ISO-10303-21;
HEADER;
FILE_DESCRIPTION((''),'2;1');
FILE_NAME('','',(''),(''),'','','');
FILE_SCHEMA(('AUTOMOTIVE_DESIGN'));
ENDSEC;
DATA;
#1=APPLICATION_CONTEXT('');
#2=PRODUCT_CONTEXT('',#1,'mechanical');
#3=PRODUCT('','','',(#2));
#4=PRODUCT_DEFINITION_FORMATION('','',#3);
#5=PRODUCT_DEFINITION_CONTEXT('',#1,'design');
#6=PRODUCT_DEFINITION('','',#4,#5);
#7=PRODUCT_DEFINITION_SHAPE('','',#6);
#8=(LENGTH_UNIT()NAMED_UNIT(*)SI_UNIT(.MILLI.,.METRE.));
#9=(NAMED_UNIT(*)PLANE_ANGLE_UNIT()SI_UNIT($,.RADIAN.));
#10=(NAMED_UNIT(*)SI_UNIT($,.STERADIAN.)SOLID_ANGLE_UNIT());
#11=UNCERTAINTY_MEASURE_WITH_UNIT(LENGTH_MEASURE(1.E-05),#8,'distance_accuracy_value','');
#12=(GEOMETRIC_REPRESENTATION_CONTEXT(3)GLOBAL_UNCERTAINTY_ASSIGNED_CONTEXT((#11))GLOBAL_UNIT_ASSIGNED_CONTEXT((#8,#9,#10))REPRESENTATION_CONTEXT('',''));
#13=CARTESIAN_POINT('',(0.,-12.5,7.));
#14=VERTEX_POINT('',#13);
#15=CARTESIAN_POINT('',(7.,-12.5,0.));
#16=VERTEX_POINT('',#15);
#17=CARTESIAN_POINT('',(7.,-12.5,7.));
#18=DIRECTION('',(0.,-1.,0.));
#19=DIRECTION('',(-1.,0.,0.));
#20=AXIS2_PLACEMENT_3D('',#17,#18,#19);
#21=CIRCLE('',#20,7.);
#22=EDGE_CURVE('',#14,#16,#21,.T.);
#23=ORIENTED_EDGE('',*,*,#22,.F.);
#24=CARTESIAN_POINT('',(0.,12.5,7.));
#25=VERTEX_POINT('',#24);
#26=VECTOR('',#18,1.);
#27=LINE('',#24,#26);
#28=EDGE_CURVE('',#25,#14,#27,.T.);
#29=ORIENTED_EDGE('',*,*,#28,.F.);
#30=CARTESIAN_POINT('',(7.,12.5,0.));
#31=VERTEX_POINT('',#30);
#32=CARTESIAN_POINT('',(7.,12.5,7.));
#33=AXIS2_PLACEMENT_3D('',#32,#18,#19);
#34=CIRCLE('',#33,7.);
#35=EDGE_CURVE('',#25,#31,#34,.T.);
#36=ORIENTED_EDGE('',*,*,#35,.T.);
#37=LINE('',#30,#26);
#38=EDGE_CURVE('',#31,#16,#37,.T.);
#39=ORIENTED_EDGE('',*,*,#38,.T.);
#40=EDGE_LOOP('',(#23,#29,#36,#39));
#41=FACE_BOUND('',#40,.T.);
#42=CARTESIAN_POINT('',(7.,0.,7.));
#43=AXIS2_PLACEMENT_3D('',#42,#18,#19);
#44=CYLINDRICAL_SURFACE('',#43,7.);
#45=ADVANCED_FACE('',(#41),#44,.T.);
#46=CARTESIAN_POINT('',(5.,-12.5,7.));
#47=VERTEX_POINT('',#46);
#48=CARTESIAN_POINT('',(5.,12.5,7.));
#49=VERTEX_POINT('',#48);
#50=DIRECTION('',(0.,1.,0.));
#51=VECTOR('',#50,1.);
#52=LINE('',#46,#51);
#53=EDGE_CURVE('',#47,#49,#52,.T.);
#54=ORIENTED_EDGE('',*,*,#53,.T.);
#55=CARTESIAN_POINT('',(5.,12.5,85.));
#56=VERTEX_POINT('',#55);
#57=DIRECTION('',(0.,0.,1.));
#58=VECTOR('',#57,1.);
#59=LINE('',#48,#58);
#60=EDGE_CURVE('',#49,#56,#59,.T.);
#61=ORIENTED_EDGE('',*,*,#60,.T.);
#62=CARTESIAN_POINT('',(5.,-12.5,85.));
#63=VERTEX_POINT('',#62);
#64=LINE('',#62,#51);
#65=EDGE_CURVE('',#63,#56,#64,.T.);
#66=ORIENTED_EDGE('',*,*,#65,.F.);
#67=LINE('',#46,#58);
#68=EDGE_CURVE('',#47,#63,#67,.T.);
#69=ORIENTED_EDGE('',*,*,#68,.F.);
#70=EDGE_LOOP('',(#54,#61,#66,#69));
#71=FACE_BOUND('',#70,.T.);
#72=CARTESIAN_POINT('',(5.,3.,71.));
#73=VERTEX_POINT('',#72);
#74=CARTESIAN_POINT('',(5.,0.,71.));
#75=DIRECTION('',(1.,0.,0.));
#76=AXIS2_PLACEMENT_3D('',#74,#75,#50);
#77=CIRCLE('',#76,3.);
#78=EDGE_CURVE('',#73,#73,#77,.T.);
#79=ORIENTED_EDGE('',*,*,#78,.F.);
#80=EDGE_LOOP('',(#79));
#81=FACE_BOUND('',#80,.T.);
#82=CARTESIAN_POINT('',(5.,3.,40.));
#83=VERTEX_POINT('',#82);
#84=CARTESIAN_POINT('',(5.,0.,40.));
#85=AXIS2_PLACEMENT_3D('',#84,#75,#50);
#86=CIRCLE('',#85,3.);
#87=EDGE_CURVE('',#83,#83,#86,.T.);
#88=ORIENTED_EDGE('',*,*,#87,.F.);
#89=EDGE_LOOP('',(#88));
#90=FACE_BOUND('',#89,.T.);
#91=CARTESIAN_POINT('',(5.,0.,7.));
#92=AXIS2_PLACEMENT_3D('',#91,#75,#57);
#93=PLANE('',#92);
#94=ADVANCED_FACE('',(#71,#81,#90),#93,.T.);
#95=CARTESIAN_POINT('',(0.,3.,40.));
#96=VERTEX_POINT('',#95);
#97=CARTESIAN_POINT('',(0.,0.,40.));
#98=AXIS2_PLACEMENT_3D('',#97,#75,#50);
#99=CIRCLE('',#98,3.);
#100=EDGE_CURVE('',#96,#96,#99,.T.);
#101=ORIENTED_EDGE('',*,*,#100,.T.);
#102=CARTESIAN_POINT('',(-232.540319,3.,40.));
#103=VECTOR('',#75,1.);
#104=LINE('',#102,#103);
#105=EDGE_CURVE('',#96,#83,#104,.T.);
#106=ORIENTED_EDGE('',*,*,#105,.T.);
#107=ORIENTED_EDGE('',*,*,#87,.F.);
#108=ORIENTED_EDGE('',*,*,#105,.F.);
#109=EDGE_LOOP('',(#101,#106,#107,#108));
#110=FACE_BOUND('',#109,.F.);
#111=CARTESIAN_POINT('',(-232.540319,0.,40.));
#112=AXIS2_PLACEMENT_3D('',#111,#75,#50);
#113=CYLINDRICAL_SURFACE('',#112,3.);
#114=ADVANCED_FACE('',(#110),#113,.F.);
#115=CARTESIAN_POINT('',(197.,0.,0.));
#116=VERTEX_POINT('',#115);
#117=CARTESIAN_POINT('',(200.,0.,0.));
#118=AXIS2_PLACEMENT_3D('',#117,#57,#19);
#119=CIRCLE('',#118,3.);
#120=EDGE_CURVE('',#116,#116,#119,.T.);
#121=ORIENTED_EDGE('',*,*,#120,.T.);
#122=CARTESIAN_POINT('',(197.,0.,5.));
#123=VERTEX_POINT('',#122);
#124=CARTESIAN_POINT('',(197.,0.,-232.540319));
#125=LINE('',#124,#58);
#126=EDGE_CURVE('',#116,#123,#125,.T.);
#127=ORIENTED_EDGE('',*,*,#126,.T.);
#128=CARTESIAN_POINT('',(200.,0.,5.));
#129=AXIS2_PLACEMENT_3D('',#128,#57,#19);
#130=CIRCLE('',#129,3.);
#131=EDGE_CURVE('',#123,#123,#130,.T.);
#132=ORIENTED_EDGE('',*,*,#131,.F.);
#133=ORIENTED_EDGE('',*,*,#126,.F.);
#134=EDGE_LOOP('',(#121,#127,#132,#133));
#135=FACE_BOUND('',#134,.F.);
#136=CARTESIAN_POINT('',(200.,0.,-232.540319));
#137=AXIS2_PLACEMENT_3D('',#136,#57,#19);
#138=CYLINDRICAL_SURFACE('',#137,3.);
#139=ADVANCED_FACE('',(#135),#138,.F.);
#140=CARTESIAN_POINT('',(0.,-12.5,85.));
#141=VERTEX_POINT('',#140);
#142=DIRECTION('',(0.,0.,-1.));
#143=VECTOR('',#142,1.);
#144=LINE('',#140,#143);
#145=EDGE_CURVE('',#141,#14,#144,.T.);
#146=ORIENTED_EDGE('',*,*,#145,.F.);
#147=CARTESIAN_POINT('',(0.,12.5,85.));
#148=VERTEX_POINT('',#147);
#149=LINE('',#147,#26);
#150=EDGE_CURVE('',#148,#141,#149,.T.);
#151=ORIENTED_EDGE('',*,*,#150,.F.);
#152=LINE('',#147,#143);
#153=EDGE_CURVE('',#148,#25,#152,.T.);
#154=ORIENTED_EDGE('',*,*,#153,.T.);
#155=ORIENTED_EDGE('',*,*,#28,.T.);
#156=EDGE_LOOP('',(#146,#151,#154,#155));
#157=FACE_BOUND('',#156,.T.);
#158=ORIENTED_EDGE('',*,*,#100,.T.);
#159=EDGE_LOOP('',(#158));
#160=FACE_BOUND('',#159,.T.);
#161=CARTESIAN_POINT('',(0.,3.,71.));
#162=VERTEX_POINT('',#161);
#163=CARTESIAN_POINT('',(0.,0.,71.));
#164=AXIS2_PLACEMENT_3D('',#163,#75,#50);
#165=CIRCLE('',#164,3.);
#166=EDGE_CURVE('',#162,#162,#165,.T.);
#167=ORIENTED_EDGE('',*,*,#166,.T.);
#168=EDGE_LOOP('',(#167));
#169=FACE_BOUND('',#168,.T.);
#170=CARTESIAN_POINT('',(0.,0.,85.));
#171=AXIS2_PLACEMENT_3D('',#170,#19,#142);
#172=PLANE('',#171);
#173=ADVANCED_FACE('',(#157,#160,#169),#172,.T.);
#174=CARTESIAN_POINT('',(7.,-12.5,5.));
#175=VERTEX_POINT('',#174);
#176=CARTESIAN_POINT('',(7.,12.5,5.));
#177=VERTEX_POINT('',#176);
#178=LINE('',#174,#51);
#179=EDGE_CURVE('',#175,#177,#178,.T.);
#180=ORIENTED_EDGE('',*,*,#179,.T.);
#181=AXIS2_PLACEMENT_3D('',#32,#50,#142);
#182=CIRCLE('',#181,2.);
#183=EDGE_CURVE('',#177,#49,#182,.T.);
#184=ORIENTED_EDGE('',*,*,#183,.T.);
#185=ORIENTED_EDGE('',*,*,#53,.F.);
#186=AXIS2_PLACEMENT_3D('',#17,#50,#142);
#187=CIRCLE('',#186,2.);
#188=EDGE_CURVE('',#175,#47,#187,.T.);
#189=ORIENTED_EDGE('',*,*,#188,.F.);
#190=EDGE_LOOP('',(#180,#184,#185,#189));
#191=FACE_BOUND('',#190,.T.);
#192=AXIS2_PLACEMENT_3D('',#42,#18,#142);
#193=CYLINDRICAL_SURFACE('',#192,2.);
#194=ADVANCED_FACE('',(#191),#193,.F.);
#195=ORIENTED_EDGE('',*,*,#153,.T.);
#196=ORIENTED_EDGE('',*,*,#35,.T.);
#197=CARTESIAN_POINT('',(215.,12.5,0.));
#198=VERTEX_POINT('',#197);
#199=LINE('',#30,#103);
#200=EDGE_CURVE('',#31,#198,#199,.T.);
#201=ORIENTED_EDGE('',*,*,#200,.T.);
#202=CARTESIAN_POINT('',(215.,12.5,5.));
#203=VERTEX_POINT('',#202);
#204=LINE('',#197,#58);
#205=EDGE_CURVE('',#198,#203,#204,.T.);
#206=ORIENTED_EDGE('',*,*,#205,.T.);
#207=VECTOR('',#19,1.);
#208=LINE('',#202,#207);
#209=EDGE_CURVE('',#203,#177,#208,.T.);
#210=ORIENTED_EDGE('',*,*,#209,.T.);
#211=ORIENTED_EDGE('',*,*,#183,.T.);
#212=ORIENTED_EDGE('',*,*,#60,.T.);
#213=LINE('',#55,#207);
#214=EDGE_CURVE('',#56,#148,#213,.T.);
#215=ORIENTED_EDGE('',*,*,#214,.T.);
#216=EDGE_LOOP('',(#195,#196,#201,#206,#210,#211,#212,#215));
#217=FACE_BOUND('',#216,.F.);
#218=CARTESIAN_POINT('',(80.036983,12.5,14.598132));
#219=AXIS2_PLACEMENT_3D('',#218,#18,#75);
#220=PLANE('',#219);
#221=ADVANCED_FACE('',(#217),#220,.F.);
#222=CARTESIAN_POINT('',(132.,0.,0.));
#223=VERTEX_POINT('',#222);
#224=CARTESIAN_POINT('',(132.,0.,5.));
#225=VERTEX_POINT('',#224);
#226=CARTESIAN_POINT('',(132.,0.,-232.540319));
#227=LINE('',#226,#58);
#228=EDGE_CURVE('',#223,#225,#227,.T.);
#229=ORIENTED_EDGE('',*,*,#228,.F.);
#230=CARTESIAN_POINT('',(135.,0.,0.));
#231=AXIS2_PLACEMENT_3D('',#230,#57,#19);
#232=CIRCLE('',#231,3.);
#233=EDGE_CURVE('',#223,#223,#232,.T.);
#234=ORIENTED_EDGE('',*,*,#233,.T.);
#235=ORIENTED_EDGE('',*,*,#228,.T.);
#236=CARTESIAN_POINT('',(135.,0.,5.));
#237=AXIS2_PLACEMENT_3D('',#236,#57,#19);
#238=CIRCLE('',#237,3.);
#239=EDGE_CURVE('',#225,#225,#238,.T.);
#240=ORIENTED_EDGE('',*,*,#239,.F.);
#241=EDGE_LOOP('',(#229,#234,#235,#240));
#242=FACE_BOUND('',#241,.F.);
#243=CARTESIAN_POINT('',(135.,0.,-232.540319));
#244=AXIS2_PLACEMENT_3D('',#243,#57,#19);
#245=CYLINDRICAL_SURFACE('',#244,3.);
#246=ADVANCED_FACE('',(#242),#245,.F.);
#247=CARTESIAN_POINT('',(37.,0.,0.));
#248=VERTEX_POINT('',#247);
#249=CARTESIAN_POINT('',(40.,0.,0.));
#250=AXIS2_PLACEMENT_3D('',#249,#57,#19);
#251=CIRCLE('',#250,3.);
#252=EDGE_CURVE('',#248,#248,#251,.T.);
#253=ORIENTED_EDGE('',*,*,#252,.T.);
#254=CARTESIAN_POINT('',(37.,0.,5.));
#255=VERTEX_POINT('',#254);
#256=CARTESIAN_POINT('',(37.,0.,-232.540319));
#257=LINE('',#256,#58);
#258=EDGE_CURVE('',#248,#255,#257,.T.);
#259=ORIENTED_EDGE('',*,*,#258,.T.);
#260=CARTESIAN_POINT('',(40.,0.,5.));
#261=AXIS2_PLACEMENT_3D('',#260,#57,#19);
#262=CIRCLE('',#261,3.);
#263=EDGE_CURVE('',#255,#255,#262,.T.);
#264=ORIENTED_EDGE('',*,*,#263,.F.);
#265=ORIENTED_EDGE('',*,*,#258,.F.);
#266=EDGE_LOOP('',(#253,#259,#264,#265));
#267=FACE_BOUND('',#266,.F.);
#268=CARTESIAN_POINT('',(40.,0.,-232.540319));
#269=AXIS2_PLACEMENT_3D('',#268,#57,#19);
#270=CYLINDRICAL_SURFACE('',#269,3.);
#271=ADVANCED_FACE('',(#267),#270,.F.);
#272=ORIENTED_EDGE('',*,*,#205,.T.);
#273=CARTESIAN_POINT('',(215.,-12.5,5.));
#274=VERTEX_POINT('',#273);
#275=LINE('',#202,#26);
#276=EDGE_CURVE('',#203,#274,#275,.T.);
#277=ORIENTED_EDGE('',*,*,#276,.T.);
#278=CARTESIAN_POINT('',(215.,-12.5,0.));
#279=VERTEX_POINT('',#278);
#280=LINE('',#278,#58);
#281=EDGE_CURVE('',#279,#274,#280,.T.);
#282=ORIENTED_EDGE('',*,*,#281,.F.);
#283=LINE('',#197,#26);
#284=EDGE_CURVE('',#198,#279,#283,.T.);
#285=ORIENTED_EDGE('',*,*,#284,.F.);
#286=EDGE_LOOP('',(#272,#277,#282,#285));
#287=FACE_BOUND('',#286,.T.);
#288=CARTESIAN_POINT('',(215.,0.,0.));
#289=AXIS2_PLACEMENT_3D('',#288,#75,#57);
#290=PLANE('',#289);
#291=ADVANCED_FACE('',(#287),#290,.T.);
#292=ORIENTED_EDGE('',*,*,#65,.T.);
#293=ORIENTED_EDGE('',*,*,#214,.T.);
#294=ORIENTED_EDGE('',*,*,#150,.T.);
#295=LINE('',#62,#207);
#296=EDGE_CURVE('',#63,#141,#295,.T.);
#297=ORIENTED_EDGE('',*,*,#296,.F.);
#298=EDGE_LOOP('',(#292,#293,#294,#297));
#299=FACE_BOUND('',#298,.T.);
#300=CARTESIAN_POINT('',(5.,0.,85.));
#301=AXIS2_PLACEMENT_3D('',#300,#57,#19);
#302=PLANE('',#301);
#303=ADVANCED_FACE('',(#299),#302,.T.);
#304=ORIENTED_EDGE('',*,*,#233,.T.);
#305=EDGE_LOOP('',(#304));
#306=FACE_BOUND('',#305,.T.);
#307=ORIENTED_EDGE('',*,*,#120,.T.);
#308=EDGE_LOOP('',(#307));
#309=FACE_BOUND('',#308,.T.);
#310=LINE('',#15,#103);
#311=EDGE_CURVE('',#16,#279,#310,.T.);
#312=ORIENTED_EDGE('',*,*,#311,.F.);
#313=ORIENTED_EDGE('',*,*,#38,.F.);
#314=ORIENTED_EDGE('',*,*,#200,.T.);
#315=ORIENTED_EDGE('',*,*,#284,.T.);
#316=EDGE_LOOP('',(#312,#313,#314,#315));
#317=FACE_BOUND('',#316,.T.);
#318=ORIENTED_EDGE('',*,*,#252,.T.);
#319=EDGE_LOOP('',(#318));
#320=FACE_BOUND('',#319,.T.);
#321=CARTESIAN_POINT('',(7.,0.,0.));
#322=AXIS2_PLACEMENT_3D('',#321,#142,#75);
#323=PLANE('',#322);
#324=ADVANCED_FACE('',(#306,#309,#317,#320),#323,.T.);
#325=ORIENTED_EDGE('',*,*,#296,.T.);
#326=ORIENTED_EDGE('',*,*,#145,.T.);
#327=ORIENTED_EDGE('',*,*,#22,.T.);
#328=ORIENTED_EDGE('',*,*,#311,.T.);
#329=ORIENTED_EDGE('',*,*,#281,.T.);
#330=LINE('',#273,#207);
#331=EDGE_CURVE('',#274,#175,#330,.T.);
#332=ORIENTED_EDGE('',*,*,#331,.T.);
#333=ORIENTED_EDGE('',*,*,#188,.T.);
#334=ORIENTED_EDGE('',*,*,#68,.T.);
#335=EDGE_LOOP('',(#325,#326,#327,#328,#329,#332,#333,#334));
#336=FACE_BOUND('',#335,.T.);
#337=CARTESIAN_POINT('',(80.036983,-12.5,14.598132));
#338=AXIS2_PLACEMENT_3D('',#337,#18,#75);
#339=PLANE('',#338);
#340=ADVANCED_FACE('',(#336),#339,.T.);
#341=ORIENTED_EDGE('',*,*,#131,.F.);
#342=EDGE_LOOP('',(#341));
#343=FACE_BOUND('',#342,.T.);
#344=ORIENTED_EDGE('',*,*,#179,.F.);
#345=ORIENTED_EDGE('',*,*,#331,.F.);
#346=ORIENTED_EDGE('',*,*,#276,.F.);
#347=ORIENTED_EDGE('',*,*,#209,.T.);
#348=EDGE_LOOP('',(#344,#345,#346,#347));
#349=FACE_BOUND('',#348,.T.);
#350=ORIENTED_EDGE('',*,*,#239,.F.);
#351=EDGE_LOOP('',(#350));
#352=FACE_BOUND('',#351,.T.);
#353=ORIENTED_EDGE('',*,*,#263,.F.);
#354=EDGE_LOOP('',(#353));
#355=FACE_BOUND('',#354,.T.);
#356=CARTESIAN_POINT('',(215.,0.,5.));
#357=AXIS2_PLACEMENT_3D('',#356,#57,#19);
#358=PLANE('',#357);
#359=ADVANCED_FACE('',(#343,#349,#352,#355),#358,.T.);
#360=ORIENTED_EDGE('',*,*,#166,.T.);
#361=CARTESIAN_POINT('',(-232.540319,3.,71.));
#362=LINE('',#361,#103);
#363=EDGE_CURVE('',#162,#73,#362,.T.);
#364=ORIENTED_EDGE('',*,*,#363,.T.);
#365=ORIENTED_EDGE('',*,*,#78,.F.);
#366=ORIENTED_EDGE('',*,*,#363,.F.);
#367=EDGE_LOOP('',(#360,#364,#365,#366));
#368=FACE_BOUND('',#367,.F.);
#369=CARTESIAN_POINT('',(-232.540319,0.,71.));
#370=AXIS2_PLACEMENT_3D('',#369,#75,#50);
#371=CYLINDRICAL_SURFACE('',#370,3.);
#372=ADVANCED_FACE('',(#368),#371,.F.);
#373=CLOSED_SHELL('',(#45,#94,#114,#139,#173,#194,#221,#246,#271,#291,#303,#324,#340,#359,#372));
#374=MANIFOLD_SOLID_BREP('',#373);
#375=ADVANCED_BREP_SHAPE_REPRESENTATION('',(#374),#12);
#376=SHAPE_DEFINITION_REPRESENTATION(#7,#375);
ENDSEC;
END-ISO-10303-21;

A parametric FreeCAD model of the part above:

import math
import FreeCAD as App
import Part
import Sketcher

V = App.Vector
Q = App.Units.Quantity

doc = App.newDocument("Part")
body = doc.addObject("PartDesign::Body", "Body")

sketch1 = doc.addObject("Sketcher::SketchObject", "Sketch")
body.addObject(sketch1)
sketch1.AttachmentSupport = (doc.XZ_Plane, [""])
sketch1.MapMode = "FlatFace"
sketch1.addGeometry([
    Part.LineSegment(V(5, 85, 0), V(0, 85, 0)),
    Part.LineSegment(V(0, 85, 0), V(0, 7, 0)),
    Part.ArcOfCircle(Part.Circle(V(7, 7, 0), V(0, 0, 1), 7), math.radians(180), math.radians(270)),
    Part.LineSegment(V(7, 0, 0), V(215, 0, 0)),
    Part.LineSegment(V(215, 0, 0), V(215, 5, 0)),
    Part.LineSegment(V(215, 5, 0), V(7, 5, 0)),
    Part.ArcOfCircle(Part.Circle(V(7, 7, 0), V(0, 0, 1), 2), math.radians(180), math.radians(270)),
    Part.LineSegment(V(5, 7, 0), V(5, 85, 0)),
], False)
sketch1.addConstraint([
    Sketcher.Constraint("Coincident", 0, 2, 1, 1),
    Sketcher.Constraint("Tangent", 1, 2, 2, 1),
    Sketcher.Constraint("Tangent", 2, 2, 3, 1),
    Sketcher.Constraint("Coincident", 3, 2, 4, 1),
    Sketcher.Constraint("Coincident", 4, 2, 5, 1),
    Sketcher.Constraint("Tangent", 5, 2, 6, 2),
    Sketcher.Constraint("Tangent", 6, 1, 7, 1),
    Sketcher.Constraint("Coincident", 7, 2, 0, 1),
    Sketcher.Constraint("Horizontal", 0),
    Sketcher.Constraint("Vertical", 1),
    Sketcher.Constraint("Horizontal", 3),
    Sketcher.Constraint("Vertical", 4),
    Sketcher.Constraint("Horizontal", 5),
    Sketcher.Constraint("Vertical", 7),
    Sketcher.Constraint("Coincident", 6, 3, 2, 3),
    Sketcher.Constraint("PointOnObject", 0, 2, -2),
    Sketcher.Constraint("PointOnObject", 2, 2, -1),
    Sketcher.Constraint("Radius", 2, Q("7 mm")),
    Sketcher.Constraint("Radius", 6, Q("2 mm")),
    Sketcher.Constraint("DistanceX", 3, 1, 3, 2, Q("208 mm")),
    Sketcher.Constraint("DistanceY", 1, 2, 1, 1, Q("78 mm")),
])
pad1 = doc.addObject("PartDesign::Pad", "Pad")
body.addObject(pad1)
pad1.Profile = sketch1
pad1.Type = "TwoLengths"
pad1.Length = 12.5
pad1.Length2 = 12.5

sketch2 = doc.addObject("Sketcher::SketchObject", "Sketch001")
body.addObject(sketch2)
sketch2.AttachmentSupport = (doc.XY_Plane, [""])
sketch2.MapMode = "FlatFace"
sketch2.addGeometry([
    Part.Circle(V(200, 0, 0), V(0, 0, 1), 3),
    Part.Circle(V(135, 0, 0), V(0, 0, 1), 3),
    Part.Circle(V(40, 0, 0), V(0, 0, 1), 3),
], False)
sketch2.addConstraint([
    Sketcher.Constraint("Equal", 0, 1),
    Sketcher.Constraint("Equal", 1, 2),
    Sketcher.Constraint("PointOnObject", 0, 3, -1),
    Sketcher.Constraint("PointOnObject", 1, 3, -1),
    Sketcher.Constraint("PointOnObject", 2, 3, -1),
    Sketcher.Constraint("Diameter", 0, Q("6 mm")),
    Sketcher.Constraint("DistanceX", -1, 1, 0, 3, Q("200 mm")),
    Sketcher.Constraint("DistanceX", -1, 1, 1, 3, Q("135 mm")),
    Sketcher.Constraint("DistanceX", -1, 1, 2, 3, Q("40 mm")),
])
doc.recompute()
hole = doc.addObject("PartDesign::Hole", "Hole")
body.addObject(hole)
hole.Profile = sketch2
hole.ThreadType = "None"
hole.Diameter = 6
hole.DepthType = "ThroughAll"
hole.Reversed = True

sketch3 = doc.addObject("Sketcher::SketchObject", "Sketch002")
body.addObject(sketch3)
sketch3.AttachmentSupport = (doc.YZ_Plane, [""])
sketch3.MapMode = "FlatFace"
sketch3.addGeometry([
    Part.Circle(V(0, 40, 0), V(0, 0, 1), 3),
    Part.Circle(V(0, 71, 0), V(0, 0, 1), 3),
], False)
sketch3.addConstraint([
    Sketcher.Constraint("Equal", 0, 1),
    Sketcher.Constraint("PointOnObject", 0, 3, -2),
    Sketcher.Constraint("PointOnObject", 1, 3, -2),
    Sketcher.Constraint("Diameter", 0, Q("6 mm")),
    Sketcher.Constraint("DistanceY", -1, 1, 0, 3, Q("40 mm")),
    Sketcher.Constraint("DistanceY", -1, 1, 1, 3, Q("71 mm")),
])
doc.recompute()
hole2 = doc.addObject("PartDesign::Hole", "Hole001")
body.addObject(hole2)
hole2.Profile = sketch3
hole2.ThreadType = "None"
hole2.Diameter = 6
hole2.DepthType = "ThroughAll"
hole2.Reversed = True

doc.recompute()
